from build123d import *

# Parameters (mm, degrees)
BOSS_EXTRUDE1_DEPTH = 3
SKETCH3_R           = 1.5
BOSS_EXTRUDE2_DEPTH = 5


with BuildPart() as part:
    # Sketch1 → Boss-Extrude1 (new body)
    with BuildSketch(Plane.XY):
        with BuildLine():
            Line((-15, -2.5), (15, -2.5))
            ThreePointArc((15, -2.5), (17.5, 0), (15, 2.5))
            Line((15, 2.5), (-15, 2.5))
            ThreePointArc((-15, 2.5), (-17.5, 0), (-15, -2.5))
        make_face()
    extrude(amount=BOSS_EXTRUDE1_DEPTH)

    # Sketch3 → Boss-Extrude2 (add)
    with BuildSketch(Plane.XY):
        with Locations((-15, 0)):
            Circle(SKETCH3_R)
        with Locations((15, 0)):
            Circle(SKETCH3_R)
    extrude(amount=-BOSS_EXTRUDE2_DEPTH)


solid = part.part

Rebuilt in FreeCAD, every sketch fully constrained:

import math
import FreeCAD as App
import Part
import Sketcher
from FreeCAD import Vector
Q = App.Units.Quantity

doc = App.newDocument("Part")
body = doc.addObject("PartDesign::Body", "Body")

# Sketch on XY plane
sketch1 = body.newObject("Sketcher::SketchObject", "Sketch")
sketch1.AttachmentSupport = (doc.getObject("XY_Plane"), [""])
sketch1.MapMode = "FlatFace"
sketch1.addGeometry([
    Part.LineSegment(Vector(-15, -2.5, 0), Vector(15, -2.5, 0)),
    Part.ArcOfCircle(Part.Circle(Vector(15, 0, 0), Vector(0, 0, 1), 2.5), math.radians(-90), math.radians(90)),
    Part.LineSegment(Vector(15, 2.5, 0), Vector(-15, 2.5, 0)),
    Part.ArcOfCircle(Part.Circle(Vector(-15, 0, 0), Vector(0, 0, 1), 2.5), math.radians(90), math.radians(270)),
], False)
sketch1.addConstraint([
    Sketcher.Constraint("Tangent", 0, 2, 1, 1),
    Sketcher.Constraint("Tangent", 1, 2, 2, 1),
    Sketcher.Constraint("Tangent", 2, 2, 3, 1),
    Sketcher.Constraint("Tangent", 3, 2, 0, 1),
    Sketcher.Constraint("Horizontal", 0),
    Sketcher.Constraint("Horizontal", 2),
    Sketcher.Constraint("Symmetric", 1, 3, 3, 3, -1, 1),
    Sketcher.Constraint("Radius", 1, Q("2.5 mm")),
    Sketcher.Constraint("DistanceX", 0, 1, 0, 2, Q("30 mm")),
])
pad1 = body.newObject("PartDesign::Pad", "Pad")
pad1.Profile = sketch1
pad1.Length = 3

# Sketch on XY plane
sketch2 = body.newObject("Sketcher::SketchObject", "Sketch001")
sketch2.AttachmentSupport = (doc.getObject("XY_Plane"), [""])
sketch2.MapMode = "FlatFace"
sketch2.addGeometry([
    Part.Circle(Vector(-15, 0, 0), Vector(0, 0, 1), 1.5),
    Part.Circle(Vector(15, 0, 0), Vector(0, 0, 1), 1.5),
], False)
sketch2.addConstraint([
    Sketcher.Constraint("Equal", 0, 1),
    Sketcher.Constraint("Symmetric", 0, 3, 1, 3, -1, 1),
    Sketcher.Constraint("PointOnObject", 0, 3, -1),
    Sketcher.Constraint("Diameter", 0, Q("3 mm")),
    Sketcher.Constraint("DistanceX", 0, 3, -1, 1, Q("15 mm")),
])
pad2 = body.newObject("PartDesign::Pad", "Pad001")
pad2.Profile = sketch2
pad2.Length = 5
pad2.Reversed = True

doc.recompute()
